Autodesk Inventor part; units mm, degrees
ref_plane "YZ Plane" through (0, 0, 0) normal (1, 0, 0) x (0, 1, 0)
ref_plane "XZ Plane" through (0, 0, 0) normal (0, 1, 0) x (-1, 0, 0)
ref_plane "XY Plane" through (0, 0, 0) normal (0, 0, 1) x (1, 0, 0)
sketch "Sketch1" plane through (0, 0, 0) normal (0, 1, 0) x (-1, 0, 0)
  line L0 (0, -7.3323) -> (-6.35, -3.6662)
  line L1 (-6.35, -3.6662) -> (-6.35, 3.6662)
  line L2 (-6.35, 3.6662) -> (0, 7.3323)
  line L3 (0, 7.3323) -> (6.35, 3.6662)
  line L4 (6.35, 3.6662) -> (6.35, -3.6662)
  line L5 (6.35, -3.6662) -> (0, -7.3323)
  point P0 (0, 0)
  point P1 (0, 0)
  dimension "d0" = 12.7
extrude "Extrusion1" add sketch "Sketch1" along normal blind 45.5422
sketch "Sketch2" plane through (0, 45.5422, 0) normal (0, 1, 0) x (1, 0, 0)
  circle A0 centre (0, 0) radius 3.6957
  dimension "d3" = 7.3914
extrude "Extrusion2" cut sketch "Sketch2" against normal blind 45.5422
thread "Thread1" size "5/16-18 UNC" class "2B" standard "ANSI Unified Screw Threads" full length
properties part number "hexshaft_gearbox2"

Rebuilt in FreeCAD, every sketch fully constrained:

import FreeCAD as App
import Part
import Sketcher
from FreeCAD import Vector
Q = App.Units.Quantity

doc = App.newDocument("Part")
params = doc.addObject("Spreadsheet::Sheet", "Params")
for row, (alias, value) in enumerate([
    ("pad1_length", "1.793 in"),
    ("sketch2_diameter", "0.291 in"),
    ("pocket1_length", "1.793 in"),
], start=1):
    params.set(f"A{row}", alias)
    params.set(f"B{row}", "=" + value)
    params.setAlias(f"B{row}", alias)

body = doc.addObject("PartDesign::Body", "Body")

sketch1 = body.newObject("Sketcher::SketchObject", "Sketch")
sketch1.AttachmentSupport = (doc.getObject("XZ_Plane"), [""])
sketch1.MapMode = "FlatFace"
sketch1.addGeometry(Part.LineSegment(Vector(6, -4, 0), Vector(0, -7, 0)), False)
sketch1.addGeometry(Part.LineSegment(Vector(0, -7, 0), Vector(-6, -4, 0)), False)
sketch1.addGeometry(Part.LineSegment(Vector(-6, -4, 0), Vector(-6, 4, 0)), False)
sketch1.addGeometry(Part.LineSegment(Vector(-6, 4, 0), Vector(0, 7, 0)), False)
sketch1.addGeometry(Part.LineSegment(Vector(0, 7, 0), Vector(6, 4, 0)), False)
sketch1.addGeometry(Part.LineSegment(Vector(6, 4, 0), Vector(6, -4, 0)), False)
sketch1.addConstraint(Sketcher.Constraint("Coincident", 0, 2, 1, 1))
sketch1.addConstraint(Sketcher.Constraint("Coincident", 1, 2, 2, 1))
sketch1.addConstraint(Sketcher.Constraint("Coincident", 2, 2, 3, 1))
sketch1.addConstraint(Sketcher.Constraint("Coincident", 3, 2, 4, 1))
sketch1.addConstraint(Sketcher.Constraint("Coincident", 4, 2, 5, 1))
sketch1.addConstraint(Sketcher.Constraint("Coincident", 5, 2, 0, 1))
sketch1.addConstraint(Sketcher.Constraint("Vertical", 2))
sketch1.addConstraint(Sketcher.Constraint("Vertical", 5))
sketch1.addConstraint(Sketcher.Constraint("Symmetric", 0, 2, 3, 2, -1, 1))
sketch1.addConstraint(Sketcher.Constraint("Symmetric", 1, 2, 4, 2, -1, 1))
sketch1.addConstraint(Sketcher.Constraint("PointOnObject", 0, 2, -2))
sketch1.addConstraint(Sketcher.Constraint("Parallel", 0, 3))
sketch1.addConstraint(Sketcher.Constraint("Horizontal", 2, 2, 4, 2))
sketch1.addConstraint(Sketcher.Constraint("DistanceX", 2, 2, 4, 2, Q("0.5 in")))
sketch1.addConstraint(Sketcher.Constraint("Angle", 0, Q("-150.0005 deg")))
sketch1.addConstraint(Sketcher.Constraint("DistanceY", 0, 2, 2, 2, Q("0.433 in")))
pad1 = body.newObject("PartDesign::Pad", "Pad")
pad1.Profile = sketch1
pad1.setExpression("Length", "Params.pad1_length")
pad1.Reversed = True

sketch2 = body.newObject("Sketcher::SketchObject", "Sketch001")
sketch2.AttachmentSupport = (doc.getObject("XZ_Plane"), [""])
sketch2.MapMode = "FlatFace"
sketch2.AttachmentOffset = App.Placement(Vector(0, 0, -1.793 * 25.4), App.Rotation())
sketch2.addGeometry(Part.Circle(Vector(0, 0, 0), Vector(0, 0, 1), 3.7), False)
sketch2.addConstraint(Sketcher.Constraint("Coincident", 0, 3, -1, 1))
sketch2.addConstraint(Sketcher.Constraint("Diameter", 0, Q("0.291 in")))
sketch2.setExpression("Constraints[1]", "Params.sketch2_diameter")
pocket1 = body.newObject("PartDesign::Pocket", "Pocket")
pocket1.Profile = sketch2
pocket1.setExpression("Length", "Params.pocket1_length")
pocket1.Reversed = True

doc.recompute()
